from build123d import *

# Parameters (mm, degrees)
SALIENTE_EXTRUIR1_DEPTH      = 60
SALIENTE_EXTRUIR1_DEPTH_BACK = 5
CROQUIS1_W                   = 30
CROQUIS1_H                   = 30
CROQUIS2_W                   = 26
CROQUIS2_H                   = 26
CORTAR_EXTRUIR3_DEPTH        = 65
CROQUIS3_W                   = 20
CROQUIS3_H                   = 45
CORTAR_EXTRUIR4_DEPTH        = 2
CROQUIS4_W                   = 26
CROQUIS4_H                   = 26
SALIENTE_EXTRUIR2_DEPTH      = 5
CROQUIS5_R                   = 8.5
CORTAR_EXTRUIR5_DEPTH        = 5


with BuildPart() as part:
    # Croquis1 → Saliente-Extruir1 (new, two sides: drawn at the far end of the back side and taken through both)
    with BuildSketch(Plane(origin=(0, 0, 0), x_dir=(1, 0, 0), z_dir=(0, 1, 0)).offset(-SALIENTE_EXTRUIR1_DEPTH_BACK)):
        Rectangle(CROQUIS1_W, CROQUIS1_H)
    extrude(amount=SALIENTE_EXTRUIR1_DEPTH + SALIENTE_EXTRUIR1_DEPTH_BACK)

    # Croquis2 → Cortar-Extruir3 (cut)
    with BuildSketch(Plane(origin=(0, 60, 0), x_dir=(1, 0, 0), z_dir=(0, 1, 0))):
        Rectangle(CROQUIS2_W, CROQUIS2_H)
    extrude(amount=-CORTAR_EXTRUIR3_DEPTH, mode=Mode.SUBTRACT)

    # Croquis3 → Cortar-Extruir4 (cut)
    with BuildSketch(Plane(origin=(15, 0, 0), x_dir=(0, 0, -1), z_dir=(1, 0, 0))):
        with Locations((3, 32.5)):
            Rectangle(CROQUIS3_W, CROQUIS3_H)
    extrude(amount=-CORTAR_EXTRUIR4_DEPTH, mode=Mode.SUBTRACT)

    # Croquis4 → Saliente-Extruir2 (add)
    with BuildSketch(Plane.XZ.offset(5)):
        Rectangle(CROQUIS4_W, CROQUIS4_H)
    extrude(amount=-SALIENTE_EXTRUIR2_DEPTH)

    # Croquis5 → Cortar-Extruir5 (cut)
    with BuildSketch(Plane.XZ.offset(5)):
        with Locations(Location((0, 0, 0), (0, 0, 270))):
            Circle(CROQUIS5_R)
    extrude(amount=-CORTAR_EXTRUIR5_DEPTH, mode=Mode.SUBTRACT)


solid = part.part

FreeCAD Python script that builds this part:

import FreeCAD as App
import Part
import Sketcher
from FreeCAD import Vector

doc = App.newDocument("Part")
params = doc.addObject("Spreadsheet::Sheet", "Params")
for row, (alias, value) in enumerate([
    ("sketch1_width", "30 mm"),
    ("pad1_length", "60 mm"),
    ("pad1_length2", "5 mm"),
    ("sketch2_width", "26 mm"),
    ("pocket1_length", "65 mm"),
    ("sketch3_width", "45 mm"),
    ("sketch3_height", "20 mm"),
    ("pocket2_length", "2 mm"),
    ("sketch4_width", "26 mm"),
    ("pad2_length", "5 mm"),
    ("sketch5_diameter", "17 mm"),
    ("pocket3_length", "5 mm"),
], start=1):
    params.set(f"A{row}", alias)
    params.set(f"B{row}", "=" + value)
    params.setAlias(f"B{row}", alias)

body = doc.addObject("PartDesign::Body", "Body")

# Sketch on XZ plane
sketch1 = body.newObject("Sketcher::SketchObject", "Sketch")
sketch1.AttachmentSupport = (doc.getObject("XZ_Plane"), [""])
sketch1.MapMode = "FlatFace"
sketch1.addGeometry(Part.LineSegment(Vector(-15, -15, 0), Vector(-15, 15, 0)), False)
sketch1.addGeometry(Part.LineSegment(Vector(-15, 15, 0), Vector(15, 15, 0)), False)
sketch1.addGeometry(Part.LineSegment(Vector(15, 15, 0), Vector(15, -15, 0)), False)
sketch1.addGeometry(Part.LineSegment(Vector(15, -15, 0), Vector(-15, -15, 0)), False)
sketch1.addConstraint(Sketcher.Constraint("Coincident", 0, 2, 1, 1))
sketch1.addConstraint(Sketcher.Constraint("Coincident", 1, 2, 2, 1))
sketch1.addConstraint(Sketcher.Constraint("Coincident", 2, 2, 3, 1))
sketch1.addConstraint(Sketcher.Constraint("Coincident", 3, 2, 0, 1))
sketch1.addConstraint(Sketcher.Constraint("Vertical", 0))
sketch1.addConstraint(Sketcher.Constraint("Horizontal", 1))
sketch1.addConstraint(Sketcher.Constraint("Vertical", 2))
sketch1.addConstraint(Sketcher.Constraint("Horizontal", 3))
sketch1.addConstraint(Sketcher.Constraint("Symmetric", 0, 2, 2, 2, -1, 1))
sketch1.addConstraint(Sketcher.Constraint("Equal", 3, 0))
sketch1.addConstraint(Sketcher.Constraint("DistanceX", 1, 1, 1, 2, 30.0))
sketch1.setExpression("Constraints[10]", "Params.sketch1_width")
pad1 = body.newObject("PartDesign::Pad", "Pad")
pad1.Profile = sketch1
pad1.Type = "TwoLengths"
pad1.setExpression("Length", "Params.pad1_length")
pad1.setExpression("Length2", "Params.pad1_length2")
pad1.Reversed = True

# Sketch on XZ plane
sketch2 = body.newObject("Sketcher::SketchObject", "Sketch001")
sketch2.AttachmentSupport = (doc.getObject("XZ_Plane"), [""])
sketch2.MapMode = "FlatFace"
sketch2.AttachmentOffset = App.Placement(Vector(0, 0, -60), App.Rotation())
sketch2.addGeometry(Part.LineSegment(Vector(-13, -13, 0), Vector(-13, 13, 0)), False)
sketch2.addGeometry(Part.LineSegment(Vector(-13, 13, 0), Vector(13, 13, 0)), False)
sketch2.addGeometry(Part.LineSegment(Vector(13, 13, 0), Vector(13, -13, 0)), False)
sketch2.addGeometry(Part.LineSegment(Vector(13, -13, 0), Vector(-13, -13, 0)), False)
sketch2.addConstraint(Sketcher.Constraint("Coincident", 0, 2, 1, 1))
sketch2.addConstraint(Sketcher.Constraint("Coincident", 1, 2, 2, 1))
sketch2.addConstraint(Sketcher.Constraint("Coincident", 2, 2, 3, 1))
sketch2.addConstraint(Sketcher.Constraint("Coincident", 3, 2, 0, 1))
sketch2.addConstraint(Sketcher.Constraint("Vertical", 0))
sketch2.addConstraint(Sketcher.Constraint("Horizontal", 1))
sketch2.addConstraint(Sketcher.Constraint("Vertical", 2))
sketch2.addConstraint(Sketcher.Constraint("Horizontal", 3))
sketch2.addConstraint(Sketcher.Constraint("Symmetric", 0, 2, 2, 2, -1, 1))
sketch2.addConstraint(Sketcher.Constraint("Equal", 3, 0))
sketch2.addConstraint(Sketcher.Constraint("DistanceX", 1, 1, 1, 2, 26.0))
sketch2.setExpression("Constraints[10]", "Params.sketch2_width")
pocket1 = body.newObject("PartDesign::Pocket", "Pocket")
pocket1.Profile = sketch2
pocket1.setExpression("Length", "Params.pocket1_length")
pocket1.Reversed = True

# Sketch on YZ plane
sketch3 = body.newObject("Sketcher::SketchObject", "Sketch002")
sketch3.AttachmentSupport = (doc.getObject("YZ_Plane"), [""])
sketch3.MapMode = "FlatFace"
sketch3.AttachmentOffset = App.Placement(Vector(0, 0, 15), App.Rotation())
sketch3.addGeometry(Part.LineSegment(Vector(55, 7, 0), Vector(10, 7, 0)), False)
sketch3.addGeometry(Part.LineSegment(Vector(10, 7, 0), Vector(10, -13, 0)), False)
sketch3.addGeometry(Part.LineSegment(Vector(10, -13, 0), Vector(55, -13, 0)), False)
sketch3.addGeometry(Part.LineSegment(Vector(55, -13, 0), Vector(55, 7, 0)), False)
sketch3.addConstraint(Sketcher.Constraint("Coincident", 0, 2, 1, 1))
sketch3.addConstraint(Sketcher.Constraint("Coincident", 1, 2, 2, 1))
sketch3.addConstraint(Sketcher.Constraint("Coincident", 2, 2, 3, 1))
sketch3.addConstraint(Sketcher.Constraint("Coincident", 3, 2, 0, 1))
sketch3.addConstraint(Sketcher.Constraint("Horizontal", 0))
sketch3.addConstraint(Sketcher.Constraint("Vertical", 1))
sketch3.addConstraint(Sketcher.Constraint("Horizontal", 2))
sketch3.addConstraint(Sketcher.Constraint("Vertical", 3))
sketch3.addConstraint(Sketcher.Constraint("DistanceX", 0, 2, 0, 1, 45.0))
sketch3.addConstraint(Sketcher.Constraint("DistanceY", 1, 2, 1, 1, 20.0))
sketch3.addConstraint(Sketcher.Constraint("DistanceX", -1, 1, 0, 2, 10.0))
sketch3.addConstraint(Sketcher.Constraint("DistanceY", -1, 1, 0, 2, 7.0))
sketch3.setExpression("Constraints[8]", "Params.sketch3_width")
sketch3.setExpression("Constraints[9]", "Params.sketch3_height")
pocket2 = body.newObject("PartDesign::Pocket", "Pocket001")
pocket2.Profile = sketch3
pocket2.setExpression("Length", "Params.pocket2_length")

# Sketch on XZ plane
sketch4 = body.newObject("Sketcher::SketchObject", "Sketch003")
sketch4.AttachmentSupport = (doc.getObject("XZ_Plane"), [""])
sketch4.MapMode = "FlatFace"
sketch4.AttachmentOffset = App.Placement(Vector(0, 0, 5), App.Rotation())
sketch4.addGeometry(Part.LineSegment(Vector(-13, 13, 0), Vector(-13, -13, 0)), False)
sketch4.addGeometry(Part.LineSegment(Vector(-13, -13, 0), Vector(13, -13, 0)), False)
sketch4.addGeometry(Part.LineSegment(Vector(13, -13, 0), Vector(13, 13, 0)), False)
sketch4.addGeometry(Part.LineSegment(Vector(13, 13, 0), Vector(-13, 13, 0)), False)
sketch4.addConstraint(Sketcher.Constraint("Coincident", 0, 2, 1, 1))
sketch4.addConstraint(Sketcher.Constraint("Coincident", 1, 2, 2, 1))
sketch4.addConstraint(Sketcher.Constraint("Coincident", 2, 2, 3, 1))
sketch4.addConstraint(Sketcher.Constraint("Coincident", 3, 2, 0, 1))
sketch4.addConstraint(Sketcher.Constraint("Vertical", 0))
sketch4.addConstraint(Sketcher.Constraint("Horizontal", 1))
sketch4.addConstraint(Sketcher.Constraint("Vertical", 2))
sketch4.addConstraint(Sketcher.Constraint("Horizontal", 3))
sketch4.addConstraint(Sketcher.Constraint("Symmetric", 0, 2, 2, 2, -1, 1))
sketch4.addConstraint(Sketcher.Constraint("Equal", 3, 0))
sketch4.addConstraint(Sketcher.Constraint("DistanceX", 1, 1, 1, 2, 26.0))
sketch4.setExpression("Constraints[10]", "Params.sketch4_width")
pad2 = body.newObject("PartDesign::Pad", "Pad001")
pad2.Profile = sketch4
pad2.setExpression("Length", "Params.pad2_length")
pad2.Reversed = True

# Sketch on XZ plane
sketch5 = body.newObject("Sketcher::SketchObject", "Sketch004")
sketch5.AttachmentSupport = (doc.getObject("XZ_Plane"), [""])
sketch5.MapMode = "FlatFace"
sketch5.AttachmentOffset = App.Placement(Vector(0, 0, 5), App.Rotation())
sketch5.addGeometry(Part.Circle(Vector(0, 0, 0), Vector(0, 0, 1), 8), False)
sketch5.addConstraint(Sketcher.Constraint("Coincident", 0, 3, -1, 1))
sketch5.addConstraint(Sketcher.Constraint("Diameter", 0, 17.0))
sketch5.setExpression("Constraints[1]", "Params.sketch5_diameter")
pocket3 = body.newObject("PartDesign::Pocket", "Pocket002")
pocket3.Profile = sketch5
pocket3.setExpression("Length", "Params.pocket3_length")

doc.recompute()
